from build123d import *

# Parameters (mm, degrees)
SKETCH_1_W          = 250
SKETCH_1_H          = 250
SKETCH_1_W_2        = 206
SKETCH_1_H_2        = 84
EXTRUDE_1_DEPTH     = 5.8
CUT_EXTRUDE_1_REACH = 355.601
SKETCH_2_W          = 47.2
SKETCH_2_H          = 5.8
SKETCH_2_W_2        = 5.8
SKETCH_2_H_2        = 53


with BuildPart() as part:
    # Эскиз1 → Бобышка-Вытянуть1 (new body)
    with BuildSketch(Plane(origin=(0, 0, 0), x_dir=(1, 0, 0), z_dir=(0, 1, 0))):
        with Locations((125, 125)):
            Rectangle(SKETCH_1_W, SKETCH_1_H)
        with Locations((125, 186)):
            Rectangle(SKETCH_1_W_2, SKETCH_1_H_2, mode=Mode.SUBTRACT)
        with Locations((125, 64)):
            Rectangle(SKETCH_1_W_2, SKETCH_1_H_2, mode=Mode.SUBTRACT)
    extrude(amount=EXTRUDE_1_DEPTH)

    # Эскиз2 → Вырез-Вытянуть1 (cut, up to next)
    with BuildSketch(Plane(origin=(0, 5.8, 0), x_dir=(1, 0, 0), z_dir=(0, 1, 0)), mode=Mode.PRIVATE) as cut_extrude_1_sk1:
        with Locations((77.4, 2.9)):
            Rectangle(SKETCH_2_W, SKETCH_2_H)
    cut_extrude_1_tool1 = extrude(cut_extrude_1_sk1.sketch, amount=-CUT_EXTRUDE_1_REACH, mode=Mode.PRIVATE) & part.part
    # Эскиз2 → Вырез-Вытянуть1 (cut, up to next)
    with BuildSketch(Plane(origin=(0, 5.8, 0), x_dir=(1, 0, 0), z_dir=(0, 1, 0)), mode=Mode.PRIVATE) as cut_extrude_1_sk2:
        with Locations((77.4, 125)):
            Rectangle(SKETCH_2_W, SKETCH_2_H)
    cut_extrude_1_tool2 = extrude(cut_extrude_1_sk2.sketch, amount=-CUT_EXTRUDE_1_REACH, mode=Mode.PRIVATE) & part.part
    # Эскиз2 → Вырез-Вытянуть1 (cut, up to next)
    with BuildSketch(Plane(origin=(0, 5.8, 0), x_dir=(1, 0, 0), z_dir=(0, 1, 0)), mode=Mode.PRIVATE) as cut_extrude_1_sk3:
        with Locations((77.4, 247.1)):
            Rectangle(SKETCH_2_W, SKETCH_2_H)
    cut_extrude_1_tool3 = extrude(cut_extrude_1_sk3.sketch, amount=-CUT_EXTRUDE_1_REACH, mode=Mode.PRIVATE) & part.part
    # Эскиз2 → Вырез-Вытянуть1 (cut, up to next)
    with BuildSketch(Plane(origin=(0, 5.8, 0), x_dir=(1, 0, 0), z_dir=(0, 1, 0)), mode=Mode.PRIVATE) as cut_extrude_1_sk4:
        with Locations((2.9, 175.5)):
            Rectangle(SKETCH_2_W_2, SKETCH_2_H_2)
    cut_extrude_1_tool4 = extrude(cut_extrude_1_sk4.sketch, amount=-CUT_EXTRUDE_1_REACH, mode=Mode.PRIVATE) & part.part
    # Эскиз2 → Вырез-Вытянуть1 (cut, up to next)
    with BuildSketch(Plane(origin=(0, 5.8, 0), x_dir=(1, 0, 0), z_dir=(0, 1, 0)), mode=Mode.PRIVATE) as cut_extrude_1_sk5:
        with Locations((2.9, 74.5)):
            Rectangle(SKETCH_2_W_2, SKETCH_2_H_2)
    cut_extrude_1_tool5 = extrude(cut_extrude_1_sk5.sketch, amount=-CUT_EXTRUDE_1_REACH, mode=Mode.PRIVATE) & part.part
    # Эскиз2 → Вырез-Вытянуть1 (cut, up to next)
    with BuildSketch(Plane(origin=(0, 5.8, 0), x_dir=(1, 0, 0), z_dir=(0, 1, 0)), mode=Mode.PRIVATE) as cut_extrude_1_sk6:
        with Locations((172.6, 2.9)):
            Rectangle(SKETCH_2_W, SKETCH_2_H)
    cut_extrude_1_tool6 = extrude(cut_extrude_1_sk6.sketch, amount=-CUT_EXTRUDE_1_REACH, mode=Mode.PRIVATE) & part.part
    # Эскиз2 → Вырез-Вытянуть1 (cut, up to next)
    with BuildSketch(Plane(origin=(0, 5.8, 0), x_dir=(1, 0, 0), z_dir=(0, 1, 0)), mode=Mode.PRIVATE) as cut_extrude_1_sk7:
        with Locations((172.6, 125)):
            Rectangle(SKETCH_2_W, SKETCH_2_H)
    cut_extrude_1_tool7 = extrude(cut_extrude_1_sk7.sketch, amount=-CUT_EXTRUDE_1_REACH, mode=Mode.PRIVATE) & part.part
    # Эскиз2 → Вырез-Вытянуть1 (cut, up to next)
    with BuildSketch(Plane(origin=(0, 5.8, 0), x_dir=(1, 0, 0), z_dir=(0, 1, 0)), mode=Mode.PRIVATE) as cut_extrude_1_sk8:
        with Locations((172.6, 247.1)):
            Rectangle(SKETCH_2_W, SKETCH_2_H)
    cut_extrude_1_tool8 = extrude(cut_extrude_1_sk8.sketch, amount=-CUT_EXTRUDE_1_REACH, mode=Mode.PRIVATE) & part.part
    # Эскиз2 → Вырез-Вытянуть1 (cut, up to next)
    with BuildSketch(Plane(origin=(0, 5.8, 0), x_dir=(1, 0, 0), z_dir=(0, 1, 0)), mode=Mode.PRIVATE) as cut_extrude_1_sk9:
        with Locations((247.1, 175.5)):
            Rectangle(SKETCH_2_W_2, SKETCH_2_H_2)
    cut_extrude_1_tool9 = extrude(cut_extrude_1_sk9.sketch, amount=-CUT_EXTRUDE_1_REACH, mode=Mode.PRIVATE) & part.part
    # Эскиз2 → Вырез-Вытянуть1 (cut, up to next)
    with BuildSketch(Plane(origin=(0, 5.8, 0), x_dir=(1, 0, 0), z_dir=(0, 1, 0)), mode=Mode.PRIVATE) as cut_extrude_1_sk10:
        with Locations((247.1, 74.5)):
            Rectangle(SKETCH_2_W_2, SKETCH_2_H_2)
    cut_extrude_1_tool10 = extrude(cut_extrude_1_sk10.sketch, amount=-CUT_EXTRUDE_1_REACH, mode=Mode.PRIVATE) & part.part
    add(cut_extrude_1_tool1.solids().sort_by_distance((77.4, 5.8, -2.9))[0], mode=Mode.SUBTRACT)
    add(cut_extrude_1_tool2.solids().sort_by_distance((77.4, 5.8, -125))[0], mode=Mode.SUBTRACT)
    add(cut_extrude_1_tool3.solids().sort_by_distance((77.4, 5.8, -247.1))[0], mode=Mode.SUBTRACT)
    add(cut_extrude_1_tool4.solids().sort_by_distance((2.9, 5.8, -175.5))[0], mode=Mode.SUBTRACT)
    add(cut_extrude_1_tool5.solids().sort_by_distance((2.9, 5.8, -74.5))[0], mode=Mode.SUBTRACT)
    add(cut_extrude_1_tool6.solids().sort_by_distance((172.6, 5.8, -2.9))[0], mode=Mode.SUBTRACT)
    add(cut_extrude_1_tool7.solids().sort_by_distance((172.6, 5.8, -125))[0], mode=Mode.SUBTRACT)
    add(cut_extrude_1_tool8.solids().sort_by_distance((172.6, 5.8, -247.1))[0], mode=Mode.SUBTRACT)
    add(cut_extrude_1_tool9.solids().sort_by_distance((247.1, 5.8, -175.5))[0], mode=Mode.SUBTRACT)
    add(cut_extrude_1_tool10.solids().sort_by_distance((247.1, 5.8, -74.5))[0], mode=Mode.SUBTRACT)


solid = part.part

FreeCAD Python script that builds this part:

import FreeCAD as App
import Part
import Sketcher
from FreeCAD import Vector

doc = App.newDocument("Part")
body = doc.addObject("PartDesign::Body", "Body")

# Sketch on XZ plane
sketch1 = body.newObject("Sketcher::SketchObject", "Sketch")
sketch1.AttachmentSupport = (doc.getObject("XZ_Plane"), [""])
sketch1.MapMode = "FlatFace"
sketch1.addGeometry([
    Part.LineSegment(Vector(0, -250, 0), Vector(0, 0, 0)),  # 0
    Part.LineSegment(Vector(0, 0, 0), Vector(250, 0, 0)),  # 1
    Part.LineSegment(Vector(250, 0, 0), Vector(250, -250, 0)),  # 2
    Part.LineSegment(Vector(250, -250, 0), Vector(0, -250, 0)),  # 3
    Part.LineSegment(Vector(228, -22, 0), Vector(22, -22, 0)),  # 4
    Part.LineSegment(Vector(22, -22, 0), Vector(22, -106, 0)),  # 5
    Part.LineSegment(Vector(22, -106, 0), Vector(228, -106, 0)),  # 6
    Part.LineSegment(Vector(228, -106, 0), Vector(228, -22, 0)),  # 7
    Part.LineSegment(Vector(228, -144, 0), Vector(22, -144, 0)),  # 8
    Part.LineSegment(Vector(22, -144, 0), Vector(22, -228, 0)),  # 9
    Part.LineSegment(Vector(22, -228, 0), Vector(228, -228, 0)),  # 10
    Part.LineSegment(Vector(228, -228, 0), Vector(228, -144, 0)),  # 11
], False)
sketch1.addConstraint([
    Sketcher.Constraint("Coincident", 0, 2, 1, 1),
    Sketcher.Constraint("Coincident", 1, 2, 2, 1),
    Sketcher.Constraint("Coincident", 2, 2, 3, 1),
    Sketcher.Constraint("Coincident", 3, 2, 0, 1),
    Sketcher.Constraint("Coincident", 4, 2, 5, 1),
    Sketcher.Constraint("Coincident", 5, 2, 6, 1),
    Sketcher.Constraint("Coincident", 6, 2, 7, 1),
    Sketcher.Constraint("Coincident", 7, 2, 4, 1),
    Sketcher.Constraint("Coincident", 8, 2, 9, 1),
    Sketcher.Constraint("Coincident", 9, 2, 10, 1),
    Sketcher.Constraint("Coincident", 10, 2, 11, 1),
    Sketcher.Constraint("Coincident", 11, 2, 8, 1),
    Sketcher.Constraint("Vertical", 0),
    Sketcher.Constraint("Horizontal", 1),
    Sketcher.Constraint("Vertical", 2),
    Sketcher.Constraint("Horizontal", 3),
    Sketcher.Constraint("Horizontal", 4),
    Sketcher.Constraint("Vertical", 5),
    Sketcher.Constraint("Horizontal", 6),
    Sketcher.Constraint("Vertical", 7),
    Sketcher.Constraint("Horizontal", 8),
    Sketcher.Constraint("Vertical", 9),
    Sketcher.Constraint("Horizontal", 10),
    Sketcher.Constraint("Vertical", 11),
    Sketcher.Constraint("Coincident", 0, 2, -1, 1),
    Sketcher.Constraint("Vertical", 5, 2, 8, 2),
    Sketcher.Constraint("Vertical", 7, 2, 10, 2),
    Sketcher.Constraint("Equal", 3, 0),
    Sketcher.Constraint("Equal", 7, 9),
    Sketcher.Constraint("DistanceX", 1, 1, 1, 2, 250.0),
    Sketcher.Constraint("DistanceX", 4, 2, 4, 1, 206.0),
    Sketcher.Constraint("DistanceY", 5, 2, 5, 1, 84.0),
    Sketcher.Constraint("DistanceX", -1, 1, 4, 2, 22.0),
    Sketcher.Constraint("DistanceY", 4, 2, -1, 1, 22.0),
    Sketcher.Constraint("DistanceY", 8, 2, -1, 1, 144.0),
])
pad1 = body.newObject("PartDesign::Pad", "Pad")
pad1.Profile = sketch1
pad1.Length = 5.8
pad1.Reversed = True

# Sketch on XZ plane
sketch2 = body.newObject("Sketcher::SketchObject", "Sketch001")
sketch2.AttachmentSupport = (doc.getObject("XZ_Plane"), [""])
sketch2.MapMode = "FlatFace"
sketch2.AttachmentOffset = App.Placement(Vector(0, 0, -5.8), App.Rotation())
sketch2.addGeometry([
    Part.LineSegment(Vector(54, -6, 0), Vector(54, 0, 0)),
    Part.LineSegment(Vector(54, 0, 0), Vector(101, 0, 0)),
    Part.LineSegment(Vector(101, 0, 0), Vector(101, -6, 0)),
    Part.LineSegment(Vector(101, -6, 0), Vector(54, -6, 0)),
], False)
sketch2.addConstraint([
    Sketcher.Constraint("Coincident", 0, 2, 1, 1),
    Sketcher.Constraint("Coincident", 1, 2, 2, 1),
    Sketcher.Constraint("Coincident", 2, 2, 3, 1),
    Sketcher.Constraint("Coincident", 3, 2, 0, 1),
    Sketcher.Constraint("Vertical", 0),
    Sketcher.Constraint("Horizontal", 1),
    Sketcher.Constraint("Vertical", 2),
    Sketcher.Constraint("Horizontal", 3),
    Sketcher.Constraint("PointOnObject", 0, 2, -1),
    Sketcher.Constraint("DistanceX", 1, 1, 1, 2, 47.2),
    Sketcher.Constraint("DistanceY", 0, 1, 0, 2, 5.8),
    Sketcher.Constraint("DistanceX", -1, 1, 1, 2, 101.0),
])
pocket1 = body.newObject("PartDesign::Pocket", "Pocket")
pocket1.Profile = sketch2
pocket1.Type = "UpToFirst"
pocket1.Reversed = True

# Sketch on XZ plane
sketch3 = body.newObject("Sketcher::SketchObject", "Sketch002")
sketch3.AttachmentSupport = (doc.getObject("XZ_Plane"), [""])
sketch3.MapMode = "FlatFace"
sketch3.AttachmentOffset = App.Placement(Vector(0, 0, -5.8), App.Rotation())
sketch3.addGeometry([
    Part.LineSegment(Vector(54, -128, 0), Vector(54, -122, 0)),
    Part.LineSegment(Vector(54, -122, 0), Vector(101, -122, 0)),
    Part.LineSegment(Vector(101, -122, 0), Vector(101, -128, 0)),
    Part.LineSegment(Vector(101, -128, 0), Vector(54, -128, 0)),
], False)
sketch3.addConstraint([
    Sketcher.Constraint("Coincident", 0, 2, 1, 1),
    Sketcher.Constraint("Coincident", 1, 2, 2, 1),
    Sketcher.Constraint("Coincident", 2, 2, 3, 1),
    Sketcher.Constraint("Coincident", 3, 2, 0, 1),
    Sketcher.Constraint("Vertical", 0),
    Sketcher.Constraint("Horizontal", 1),
    Sketcher.Constraint("Vertical", 2),
    Sketcher.Constraint("Horizontal", 3),
    Sketcher.Constraint("DistanceX", 1, 1, 1, 2, 47.2),
    Sketcher.Constraint("DistanceY", 0, 1, 0, 2, 5.8),
    Sketcher.Constraint("DistanceX", -1, 1, 1, 2, 101.0),
    Sketcher.Constraint("DistanceY", 0, 2, -1, 1, 122.1),
])
pocket2 = body.newObject("PartDesign::Pocket", "Pocket001")
pocket2.Profile = sketch3
pocket2.Type = "UpToFirst"
pocket2.Reversed = True

# Sketch on XZ plane
sketch4 = body.newObject("Sketcher::SketchObject", "Sketch003")
sketch4.AttachmentSupport = (doc.getObject("XZ_Plane"), [""])
sketch4.MapMode = "FlatFace"
sketch4.AttachmentOffset = App.Placement(Vector(0, 0, -5.8), App.Rotation())
sketch4.addGeometry([
    Part.LineSegment(Vector(54, -250, 0), Vector(54, -244, 0)),
    Part.LineSegment(Vector(54, -244, 0), Vector(101, -244, 0)),
    Part.LineSegment(Vector(101, -244, 0), Vector(101, -250, 0)),
    Part.LineSegment(Vector(101, -250, 0), Vector(54, -250, 0)),
], False)
sketch4.addConstraint([
    Sketcher.Constraint("Coincident", 0, 2, 1, 1),
    Sketcher.Constraint("Coincident", 1, 2, 2, 1),
    Sketcher.Constraint("Coincident", 2, 2, 3, 1),
    Sketcher.Constraint("Coincident", 3, 2, 0, 1),
    Sketcher.Constraint("Vertical", 0),
    Sketcher.Constraint("Horizontal", 1),
    Sketcher.Constraint("Vertical", 2),
    Sketcher.Constraint("Horizontal", 3),
    Sketcher.Constraint("DistanceX", 1, 1, 1, 2, 47.2),
    Sketcher.Constraint("DistanceY", 0, 1, 0, 2, 5.8),
    Sketcher.Constraint("DistanceX", -1, 1, 1, 2, 101.0),
    Sketcher.Constraint("DistanceY", 2, 2, -1, 1, 250.0),
])
pocket3 = body.newObject("PartDesign::Pocket", "Pocket002")
pocket3.Profile = sketch4
pocket3.Type = "UpToFirst"
pocket3.Reversed = True

# Sketch on XZ plane
sketch5 = body.newObject("Sketcher::SketchObject", "Sketch004")
sketch5.AttachmentSupport = (doc.getObject("XZ_Plane"), [""])
sketch5.MapMode = "FlatFace"
sketch5.AttachmentOffset = App.Placement(Vector(0, 0, -5.8), App.Rotation())
sketch5.addGeometry([
    Part.LineSegment(Vector(0, -202, 0), Vector(0, -149, 0)),
    Part.LineSegment(Vector(0, -149, 0), Vector(6, -149, 0)),
    Part.LineSegment(Vector(6, -149, 0), Vector(6, -202, 0)),
    Part.LineSegment(Vector(6, -202, 0), Vector(0, -202, 0)),
], False)
sketch5.addConstraint([
    Sketcher.Constraint("Coincident", 0, 2, 1, 1),
    Sketcher.Constraint("Coincident", 1, 2, 2, 1),
    Sketcher.Constraint("Coincident", 2, 2, 3, 1),
    Sketcher.Constraint("Coincident", 3, 2, 0, 1),
    Sketcher.Constraint("Vertical", 0),
    Sketcher.Constraint("Horizontal", 1),
    Sketcher.Constraint("Vertical", 2),
    Sketcher.Constraint("Horizontal", 3),
    Sketcher.Constraint("PointOnObject", 0, 2, -2),
    Sketcher.Constraint("DistanceY", 0, 1, 0, 2, 53.0),
    Sketcher.Constraint("DistanceX", 1, 1, 1, 2, 5.8),
    Sketcher.Constraint("DistanceY", 0, 2, -1, 1, 149.0),
])
pocket4 = body.newObject("PartDesign::Pocket", "Pocket003")
pocket4.Profile = sketch5
pocket4.Type = "UpToFirst"
pocket4.Reversed = True

# Sketch on XZ plane
sketch6 = body.newObject("Sketcher::SketchObject", "Sketch005")
sketch6.AttachmentSupport = (doc.getObject("XZ_Plane"), [""])
sketch6.MapMode = "FlatFace"
sketch6.AttachmentOffset = App.Placement(Vector(0, 0, -5.8), App.Rotation())
sketch6.addGeometry([
    Part.LineSegment(Vector(0, -101, 0), Vector(0, -48, 0)),
    Part.LineSegment(Vector(0, -48, 0), Vector(6, -48, 0)),
    Part.LineSegment(Vector(6, -48, 0), Vector(6, -101, 0)),
    Part.LineSegment(Vector(6, -101, 0), Vector(0, -101, 0)),
], False)
sketch6.addConstraint([
    Sketcher.Constraint("Coincident", 0, 2, 1, 1),
    Sketcher.Constraint("Coincident", 1, 2, 2, 1),
    Sketcher.Constraint("Coincident", 2, 2, 3, 1),
    Sketcher.Constraint("Coincident", 3, 2, 0, 1),
    Sketcher.Constraint("Vertical", 0),
    Sketcher.Constraint("Horizontal", 1),
    Sketcher.Constraint("Vertical", 2),
    Sketcher.Constraint("Horizontal", 3),
    Sketcher.Constraint("PointOnObject", 0, 2, -2),
    Sketcher.Constraint("DistanceY", 0, 1, 0, 2, 53.0),
    Sketcher.Constraint("DistanceX", 1, 1, 1, 2, 5.8),
    Sketcher.Constraint("DistanceY", 0, 2, -1, 1, 48.0),
])
pocket5 = body.newObject("PartDesign::Pocket", "Pocket004")
pocket5.Profile = sketch6
pocket5.Type = "UpToFirst"
pocket5.Reversed = True

# Sketch on XZ plane
sketch7 = body.newObject("Sketcher::SketchObject", "Sketch006")
sketch7.AttachmentSupport = (doc.getObject("XZ_Plane"), [""])
sketch7.MapMode = "FlatFace"
sketch7.AttachmentOffset = App.Placement(Vector(0, 0, -5.8), App.Rotation())
sketch7.addGeometry([
    Part.LineSegment(Vector(149, -6, 0), Vector(149, 0, 0)),
    Part.LineSegment(Vector(149, 0, 0), Vector(196, 0, 0)),
    Part.LineSegment(Vector(196, 0, 0), Vector(196, -6, 0)),
    Part.LineSegment(Vector(196, -6, 0), Vector(149, -6, 0)),
], False)
sketch7.addConstraint([
    Sketcher.Constraint("Coincident", 0, 2, 1, 1),
    Sketcher.Constraint("Coincident", 1, 2, 2, 1),
    Sketcher.Constraint("Coincident", 2, 2, 3, 1),
    Sketcher.Constraint("Coincident", 3, 2, 0, 1),
    Sketcher.Constraint("Vertical", 0),
    Sketcher.Constraint("Horizontal", 1),
    Sketcher.Constraint("Vertical", 2),
    Sketcher.Constraint("Horizontal", 3),
    Sketcher.Constraint("PointOnObject", 0, 2, -1),
    Sketcher.Constraint("DistanceX", 1, 1, 1, 2, 47.2),
    Sketcher.Constraint("DistanceY", 0, 1, 0, 2, 5.8),
    Sketcher.Constraint("DistanceX", -1, 1, 0, 2, 149.0),
])
pocket6 = body.newObject("PartDesign::Pocket", "Pocket005")
pocket6.Profile = sketch7
pocket6.Type = "UpToFirst"
pocket6.Reversed = True

# Sketch on XZ plane
sketch8 = body.newObject("Sketcher::SketchObject", "Sketch007")
sketch8.AttachmentSupport = (doc.getObject("XZ_Plane"), [""])
sketch8.MapMode = "FlatFace"
sketch8.AttachmentOffset = App.Placement(Vector(0, 0, -5.8), App.Rotation())
sketch8.addGeometry([
    Part.LineSegment(Vector(149, -128, 0), Vector(149, -122, 0)),
    Part.LineSegment(Vector(149, -122, 0), Vector(196, -122, 0)),
    Part.LineSegment(Vector(196, -122, 0), Vector(196, -128, 0)),
    Part.LineSegment(Vector(196, -128, 0), Vector(149, -128, 0)),
], False)
sketch8.addConstraint([
    Sketcher.Constraint("Coincident", 0, 2, 1, 1),
    Sketcher.Constraint("Coincident", 1, 2, 2, 1),
    Sketcher.Constraint("Coincident", 2, 2, 3, 1),
    Sketcher.Constraint("Coincident", 3, 2, 0, 1),
    Sketcher.Constraint("Vertical", 0),
    Sketcher.Constraint("Horizontal", 1),
    Sketcher.Constraint("Vertical", 2),
    Sketcher.Constraint("Horizontal", 3),
    Sketcher.Constraint("DistanceX", 1, 1, 1, 2, 47.2),
    Sketcher.Constraint("DistanceY", 0, 1, 0, 2, 5.8),
    Sketcher.Constraint("DistanceX", -1, 1, 0, 2, 149.0),
    Sketcher.Constraint("DistanceY", 0, 2, -1, 1, 122.1),
])
pocket7 = body.newObject("PartDesign::Pocket", "Pocket006")
pocket7.Profile = sketch8
pocket7.Type = "UpToFirst"
pocket7.Reversed = True

# Sketch on XZ plane
sketch9 = body.newObject("Sketcher::SketchObject", "Sketch008")
sketch9.AttachmentSupport = (doc.getObject("XZ_Plane"), [""])
sketch9.MapMode = "FlatFace"
sketch9.AttachmentOffset = App.Placement(Vector(0, 0, -5.8), App.Rotation())
sketch9.addGeometry([
    Part.LineSegment(Vector(149, -250, 0), Vector(149, -244, 0)),
    Part.LineSegment(Vector(149, -244, 0), Vector(196, -244, 0)),
    Part.LineSegment(Vector(196, -244, 0), Vector(196, -250, 0)),
    Part.LineSegment(Vector(196, -250, 0), Vector(149, -250, 0)),
], False)
sketch9.addConstraint([
    Sketcher.Constraint("Coincident", 0, 2, 1, 1),
    Sketcher.Constraint("Coincident", 1, 2, 2, 1),
    Sketcher.Constraint("Coincident", 2, 2, 3, 1),
    Sketcher.Constraint("Coincident", 3, 2, 0, 1),
    Sketcher.Constraint("Vertical", 0),
    Sketcher.Constraint("Horizontal", 1),
    Sketcher.Constraint("Vertical", 2),
    Sketcher.Constraint("Horizontal", 3),
    Sketcher.Constraint("DistanceX", 1, 1, 1, 2, 47.2),
    Sketcher.Constraint("DistanceY", 0, 1, 0, 2, 5.8),
    Sketcher.Constraint("DistanceX", -1, 1, 0, 2, 149.0),
    Sketcher.Constraint("DistanceY", 2, 2, -1, 1, 250.0),
])
pocket8 = body.newObject("PartDesign::Pocket", "Pocket007")
pocket8.Profile = sketch9
pocket8.Type = "UpToFirst"
pocket8.Reversed = True

# Sketch on XZ plane
sketch10 = body.newObject("Sketcher::SketchObject", "Sketch009")
sketch10.AttachmentSupport = (doc.getObject("XZ_Plane"), [""])
sketch10.MapMode = "FlatFace"
sketch10.AttachmentOffset = App.Placement(Vector(0, 0, -5.8), App.Rotation())
sketch10.addGeometry([
    Part.LineSegment(Vector(244, -202, 0), Vector(244, -149, 0)),
    Part.LineSegment(Vector(244, -149, 0), Vector(250, -149, 0)),
    Part.LineSegment(Vector(250, -149, 0), Vector(250, -202, 0)),
    Part.LineSegment(Vector(250, -202, 0), Vector(244, -202, 0)),
], False)
sketch10.addConstraint([
    Sketcher.Constraint("Coincident", 0, 2, 1, 1),
    Sketcher.Constraint("Coincident", 1, 2, 2, 1),
    Sketcher.Constraint("Coincident", 2, 2, 3, 1),
    Sketcher.Constraint("Coincident", 3, 2, 0, 1),
    Sketcher.Constraint("Vertical", 0),
    Sketcher.Constraint("Horizontal", 1),
    Sketcher.Constraint("Vertical", 2),
    Sketcher.Constraint("Horizontal", 3),
    Sketcher.Constraint("DistanceY", 0, 1, 0, 2, 53.0),
    Sketcher.Constraint("DistanceX", 1, 1, 1, 2, 5.8),
    Sketcher.Constraint("DistanceY", 0, 2, -1, 1, 149.0),
    Sketcher.Constraint("DistanceX", -1, 1, 1, 2, 250.0),
])
pocket9 = body.newObject("PartDesign::Pocket", "Pocket008")
pocket9.Profile = sketch10
pocket9.Type = "UpToFirst"
pocket9.Reversed = True

# Sketch on XZ plane
sketch11 = body.newObject("Sketcher::SketchObject", "Sketch010")
sketch11.AttachmentSupport = (doc.getObject("XZ_Plane"), [""])
sketch11.MapMode = "FlatFace"
sketch11.AttachmentOffset = App.Placement(Vector(0, 0, -5.8), App.Rotation())
sketch11.addGeometry([
    Part.LineSegment(Vector(244, -101, 0), Vector(244, -48, 0)),
    Part.LineSegment(Vector(244, -48, 0), Vector(250, -48, 0)),
    Part.LineSegment(Vector(250, -48, 0), Vector(250, -101, 0)),
    Part.LineSegment(Vector(250, -101, 0), Vector(244, -101, 0)),
], False)
sketch11.addConstraint([
    Sketcher.Constraint("Coincident", 0, 2, 1, 1),
    Sketcher.Constraint("Coincident", 1, 2, 2, 1),
    Sketcher.Constraint("Coincident", 2, 2, 3, 1),
    Sketcher.Constraint("Coincident", 3, 2, 0, 1),
    Sketcher.Constraint("Vertical", 0),
    Sketcher.Constraint("Horizontal", 1),
    Sketcher.Constraint("Vertical", 2),
    Sketcher.Constraint("Horizontal", 3),
    Sketcher.Constraint("DistanceY", 0, 1, 0, 2, 53.0),
    Sketcher.Constraint("DistanceX", 1, 1, 1, 2, 5.8),
    Sketcher.Constraint("DistanceY", 0, 2, -1, 1, 48.0),
    Sketcher.Constraint("DistanceX", -1, 1, 1, 2, 250.0),
])
pocket10 = body.newObject("PartDesign::Pocket", "Pocket009")
pocket10.Profile = sketch11
pocket10.Type = "UpToFirst"
pocket10.Reversed = True

doc.recompute()
